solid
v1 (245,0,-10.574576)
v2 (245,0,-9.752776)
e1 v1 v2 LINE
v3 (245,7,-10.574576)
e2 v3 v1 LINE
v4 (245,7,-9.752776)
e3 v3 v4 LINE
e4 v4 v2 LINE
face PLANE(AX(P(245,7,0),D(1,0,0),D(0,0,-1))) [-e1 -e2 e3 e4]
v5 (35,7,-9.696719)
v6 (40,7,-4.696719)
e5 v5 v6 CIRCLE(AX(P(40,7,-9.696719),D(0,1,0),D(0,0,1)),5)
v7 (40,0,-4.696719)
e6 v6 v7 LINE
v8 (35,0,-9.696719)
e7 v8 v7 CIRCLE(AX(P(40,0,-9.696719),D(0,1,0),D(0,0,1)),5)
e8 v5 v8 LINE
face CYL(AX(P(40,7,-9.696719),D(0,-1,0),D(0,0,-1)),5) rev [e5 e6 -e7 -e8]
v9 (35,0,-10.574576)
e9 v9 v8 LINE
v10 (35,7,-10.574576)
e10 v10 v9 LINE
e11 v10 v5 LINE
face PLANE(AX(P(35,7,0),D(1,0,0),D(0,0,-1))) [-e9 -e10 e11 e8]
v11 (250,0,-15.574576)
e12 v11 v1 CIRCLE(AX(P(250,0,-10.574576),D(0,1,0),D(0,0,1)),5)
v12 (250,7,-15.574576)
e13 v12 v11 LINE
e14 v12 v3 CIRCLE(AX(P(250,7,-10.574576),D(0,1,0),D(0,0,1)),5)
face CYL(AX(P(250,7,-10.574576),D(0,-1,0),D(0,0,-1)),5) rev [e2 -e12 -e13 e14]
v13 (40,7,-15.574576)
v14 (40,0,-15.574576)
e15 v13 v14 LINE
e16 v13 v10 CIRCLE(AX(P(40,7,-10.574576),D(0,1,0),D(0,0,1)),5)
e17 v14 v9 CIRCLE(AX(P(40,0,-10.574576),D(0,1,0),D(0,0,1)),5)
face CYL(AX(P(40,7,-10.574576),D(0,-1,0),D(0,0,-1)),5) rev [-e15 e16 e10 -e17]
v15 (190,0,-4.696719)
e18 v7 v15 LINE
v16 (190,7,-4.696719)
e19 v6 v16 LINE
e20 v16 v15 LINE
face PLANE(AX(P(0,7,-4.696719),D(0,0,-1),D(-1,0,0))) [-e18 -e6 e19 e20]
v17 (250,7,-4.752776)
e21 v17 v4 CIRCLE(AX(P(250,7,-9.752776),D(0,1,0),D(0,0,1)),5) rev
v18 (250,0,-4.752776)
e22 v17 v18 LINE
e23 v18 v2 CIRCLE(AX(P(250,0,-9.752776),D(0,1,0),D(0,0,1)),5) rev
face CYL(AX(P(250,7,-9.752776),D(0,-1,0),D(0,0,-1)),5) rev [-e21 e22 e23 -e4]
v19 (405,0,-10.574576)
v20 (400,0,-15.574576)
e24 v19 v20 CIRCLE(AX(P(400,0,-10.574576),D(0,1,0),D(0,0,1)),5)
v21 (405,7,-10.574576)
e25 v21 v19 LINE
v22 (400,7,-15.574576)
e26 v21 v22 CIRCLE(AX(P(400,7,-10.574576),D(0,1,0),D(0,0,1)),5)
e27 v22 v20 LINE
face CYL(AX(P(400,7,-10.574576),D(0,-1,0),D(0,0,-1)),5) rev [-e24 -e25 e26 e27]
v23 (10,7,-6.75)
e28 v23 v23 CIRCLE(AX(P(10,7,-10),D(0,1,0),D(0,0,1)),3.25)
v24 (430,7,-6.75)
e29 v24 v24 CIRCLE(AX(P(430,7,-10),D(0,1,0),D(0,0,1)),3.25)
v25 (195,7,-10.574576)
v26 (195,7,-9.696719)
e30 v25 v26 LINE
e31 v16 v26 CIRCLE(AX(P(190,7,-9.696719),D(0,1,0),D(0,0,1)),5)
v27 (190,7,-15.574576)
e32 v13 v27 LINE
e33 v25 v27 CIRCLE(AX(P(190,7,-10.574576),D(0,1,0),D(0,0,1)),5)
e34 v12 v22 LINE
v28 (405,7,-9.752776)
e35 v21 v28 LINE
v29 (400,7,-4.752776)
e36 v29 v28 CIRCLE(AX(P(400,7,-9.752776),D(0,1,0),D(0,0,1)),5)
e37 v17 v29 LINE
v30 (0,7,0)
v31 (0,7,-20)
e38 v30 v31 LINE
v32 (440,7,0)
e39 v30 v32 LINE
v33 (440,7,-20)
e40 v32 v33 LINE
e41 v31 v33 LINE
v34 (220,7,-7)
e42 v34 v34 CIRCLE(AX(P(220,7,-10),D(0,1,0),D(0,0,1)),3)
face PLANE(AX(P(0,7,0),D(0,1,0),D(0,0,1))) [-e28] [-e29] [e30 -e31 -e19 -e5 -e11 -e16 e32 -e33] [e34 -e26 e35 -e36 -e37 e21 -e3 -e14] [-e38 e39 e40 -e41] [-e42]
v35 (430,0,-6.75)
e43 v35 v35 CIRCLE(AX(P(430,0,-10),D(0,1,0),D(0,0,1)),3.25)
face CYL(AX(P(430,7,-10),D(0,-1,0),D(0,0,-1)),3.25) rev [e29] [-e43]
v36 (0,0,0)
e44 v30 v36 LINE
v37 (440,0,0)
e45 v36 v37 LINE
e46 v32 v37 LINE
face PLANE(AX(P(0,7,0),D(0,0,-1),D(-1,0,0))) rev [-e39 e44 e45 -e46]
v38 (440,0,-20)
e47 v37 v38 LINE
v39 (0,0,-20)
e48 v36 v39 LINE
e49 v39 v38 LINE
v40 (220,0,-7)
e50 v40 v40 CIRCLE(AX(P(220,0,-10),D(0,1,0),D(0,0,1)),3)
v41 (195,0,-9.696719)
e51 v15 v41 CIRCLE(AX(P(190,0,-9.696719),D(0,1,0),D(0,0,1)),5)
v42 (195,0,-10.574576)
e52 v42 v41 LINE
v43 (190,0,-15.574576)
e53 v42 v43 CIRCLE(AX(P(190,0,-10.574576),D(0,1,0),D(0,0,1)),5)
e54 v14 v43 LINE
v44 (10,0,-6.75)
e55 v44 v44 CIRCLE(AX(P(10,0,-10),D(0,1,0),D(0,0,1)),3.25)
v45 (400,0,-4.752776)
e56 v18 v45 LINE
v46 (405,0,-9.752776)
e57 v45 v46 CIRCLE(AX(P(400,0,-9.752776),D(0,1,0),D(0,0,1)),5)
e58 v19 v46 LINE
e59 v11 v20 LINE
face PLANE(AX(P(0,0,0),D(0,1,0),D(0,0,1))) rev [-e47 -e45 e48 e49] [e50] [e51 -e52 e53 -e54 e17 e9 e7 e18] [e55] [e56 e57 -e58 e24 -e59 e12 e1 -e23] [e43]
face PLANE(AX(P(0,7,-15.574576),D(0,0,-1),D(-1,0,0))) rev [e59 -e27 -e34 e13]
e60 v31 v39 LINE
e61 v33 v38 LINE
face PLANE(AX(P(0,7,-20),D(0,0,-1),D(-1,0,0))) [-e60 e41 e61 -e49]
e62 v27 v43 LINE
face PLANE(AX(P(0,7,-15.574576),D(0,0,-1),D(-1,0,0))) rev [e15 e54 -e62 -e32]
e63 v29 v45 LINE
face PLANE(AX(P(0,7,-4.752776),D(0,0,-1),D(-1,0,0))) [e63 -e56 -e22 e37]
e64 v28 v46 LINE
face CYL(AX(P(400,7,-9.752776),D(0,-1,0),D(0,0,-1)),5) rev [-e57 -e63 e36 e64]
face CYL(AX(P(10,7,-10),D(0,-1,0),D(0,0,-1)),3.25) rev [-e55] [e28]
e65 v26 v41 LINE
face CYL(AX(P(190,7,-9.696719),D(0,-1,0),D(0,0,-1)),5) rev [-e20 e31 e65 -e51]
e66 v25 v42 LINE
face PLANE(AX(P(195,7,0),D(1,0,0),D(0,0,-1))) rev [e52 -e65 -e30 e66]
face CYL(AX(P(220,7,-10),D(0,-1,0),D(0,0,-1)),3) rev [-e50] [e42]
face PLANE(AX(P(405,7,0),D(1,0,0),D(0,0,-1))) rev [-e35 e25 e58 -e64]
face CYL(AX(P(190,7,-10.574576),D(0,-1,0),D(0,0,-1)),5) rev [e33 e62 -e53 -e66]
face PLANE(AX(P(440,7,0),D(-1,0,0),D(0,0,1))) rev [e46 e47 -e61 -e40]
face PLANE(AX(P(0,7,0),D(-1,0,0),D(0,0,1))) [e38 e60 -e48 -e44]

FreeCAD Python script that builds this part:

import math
import FreeCAD as App
import Part
import Sketcher

V = App.Vector
Q = App.Units.Quantity


def add_polygon(sketch, points):
    """Adds a closed chain of lines whose ends are joined by coincident constraints."""
    first, n = sketch.GeometryCount, len(points)
    for a, b in zip(points, points[1:] + points[:1]):
        sketch.addGeometry(Part.LineSegment(App.Vector(*a, 0), App.Vector(*b, 0)), False)
    for i in range(n):
        sketch.addConstraint(Sketcher.Constraint("Coincident", first + i, 2, first + (i + 1) % n, 1))

doc = App.newDocument("Part")
body = doc.addObject("PartDesign::Body", "Body")

sketch1 = body.newObject("Sketcher::SketchObject", "Sketch")
sketch1.AttachmentSupport = (doc.getObject("XZ_Plane"), [""])
sketch1.MapMode = "FlatFace"
add_polygon(sketch1, [(0, -20), (0, 0), (440, 0), (440, -20)])
sketch1.addGeometry(Part.Circle(V(10, -10, 0), V(0, 0, 1), 3.2), False)
sketch1.addGeometry(Part.ArcOfCircle(Part.Circle(V(40, -10.6, 0), V(0, 0, 1), 5), math.radians(180), math.radians(270)), False)
sketch1.addGeometry(Part.LineSegment(V(40, -15.6, 0), V(190, -15.6, 0)), False)
sketch1.addGeometry(Part.ArcOfCircle(Part.Circle(V(190, -10.6, 0), V(0, 0, 1), 5), math.radians(-90), math.radians(0)), False)
sketch1.addGeometry(Part.LineSegment(V(195, -10.6, 0), V(195, -9.7, 0)), False)
sketch1.addGeometry(Part.ArcOfCircle(Part.Circle(V(190, -9.7, 0), V(0, 0, 1), 5), math.radians(0), math.radians(90)), False)
sketch1.addGeometry(Part.LineSegment(V(190, -4.7, 0), V(40, -4.7, 0)), False)
sketch1.addGeometry(Part.ArcOfCircle(Part.Circle(V(40, -9.7, 0), V(0, 0, 1), 5), math.radians(90), math.radians(180)), False)
sketch1.addGeometry(Part.LineSegment(V(35, -9.7, 0), V(35, -10.6, 0)), False)
sketch1.addGeometry(Part.Circle(V(220, -10, 0), V(0, 0, 1), 3), False)
sketch1.addGeometry(Part.Circle(V(430, -10, 0), V(0, 0, 1), 3.2), False)
sketch1.addGeometry(Part.ArcOfCircle(Part.Circle(V(250, -10.6, 0), V(0, 0, 1), 5), math.radians(180), math.radians(270)), False)
sketch1.addGeometry(Part.LineSegment(V(250, -15.6, 0), V(400, -15.6, 0)), False)
sketch1.addGeometry(Part.ArcOfCircle(Part.Circle(V(400, -10.6, 0), V(0, 0, 1), 5), math.radians(-90), math.radians(0)), False)
sketch1.addGeometry(Part.LineSegment(V(405, -10.6, 0), V(405, -9.8, 0)), False)
sketch1.addGeometry(Part.ArcOfCircle(Part.Circle(V(400, -9.8, 0), V(0, 0, 1), 5), math.radians(0), math.radians(90)), False)
sketch1.addGeometry(Part.LineSegment(V(400, -4.8, 0), V(250, -4.8, 0)), False)
sketch1.addGeometry(Part.ArcOfCircle(Part.Circle(V(250, -9.8, 0), V(0, 0, 1), 5), math.radians(90), math.radians(180)), False)
sketch1.addGeometry(Part.LineSegment(V(245, -9.8, 0), V(245, -10.6, 0)), False)
sketch1.addConstraint(Sketcher.Constraint("Tangent", 5, 2, 6, 1))
sketch1.addConstraint(Sketcher.Constraint("Tangent", 6, 2, 7, 1))
sketch1.addConstraint(Sketcher.Constraint("Tangent", 7, 2, 8, 1))
sketch1.addConstraint(Sketcher.Constraint("Tangent", 8, 2, 9, 1))
sketch1.addConstraint(Sketcher.Constraint("Tangent", 9, 2, 10, 1))
sketch1.addConstraint(Sketcher.Constraint("Tangent", 10, 2, 11, 1))
sketch1.addConstraint(Sketcher.Constraint("Tangent", 11, 2, 12, 1))
sketch1.addConstraint(Sketcher.Constraint("Tangent", 12, 2, 5, 1))
sketch1.addConstraint(Sketcher.Constraint("Tangent", 15, 2, 16, 1))
sketch1.addConstraint(Sketcher.Constraint("Tangent", 16, 2, 17, 1))
sketch1.addConstraint(Sketcher.Constraint("Tangent", 17, 2, 18, 1))
sketch1.addConstraint(Sketcher.Constraint("Tangent", 18, 2, 19, 1))
sketch1.addConstraint(Sketcher.Constraint("Tangent", 19, 2, 20, 1))
sketch1.addConstraint(Sketcher.Constraint("Tangent", 20, 2, 21, 1))
sketch1.addConstraint(Sketcher.Constraint("Tangent", 21, 2, 22, 1))
sketch1.addConstraint(Sketcher.Constraint("Tangent", 22, 2, 15, 1))
sketch1.addConstraint(Sketcher.Constraint("Vertical", 0))
sketch1.addConstraint(Sketcher.Constraint("Horizontal", 1))
sketch1.addConstraint(Sketcher.Constraint("Vertical", 2))
sketch1.addConstraint(Sketcher.Constraint("Horizontal", 3))
sketch1.addConstraint(Sketcher.Constraint("Horizontal", 6))
sketch1.addConstraint(Sketcher.Constraint("Vertical", 8))
sketch1.addConstraint(Sketcher.Constraint("Horizontal", 10))
sketch1.addConstraint(Sketcher.Constraint("Vertical", 12))
sketch1.addConstraint(Sketcher.Constraint("Horizontal", 16))
sketch1.addConstraint(Sketcher.Constraint("Vertical", 18))
sketch1.addConstraint(Sketcher.Constraint("Horizontal", 20))
sketch1.addConstraint(Sketcher.Constraint("Vertical", 22))
sketch1.addConstraint(Sketcher.Constraint("Coincident", 0, 2, -1, 1))
sketch1.addConstraint(Sketcher.Constraint("Equal", 5, 7))
sketch1.addConstraint(Sketcher.Constraint("Equal", 7, 9))
sketch1.addConstraint(Sketcher.Constraint("Equal", 9, 11))
sketch1.addConstraint(Sketcher.Constraint("Equal", 4, 14))
sketch1.addConstraint(Sketcher.Constraint("Equal", 11, 15))
sketch1.addConstraint(Sketcher.Constraint("Equal", 15, 17))
sketch1.addConstraint(Sketcher.Constraint("Equal", 17, 19))
sketch1.addConstraint(Sketcher.Constraint("Equal", 19, 21))
sketch1.addConstraint(Sketcher.Constraint("Horizontal", 4, 3, 13, 3))
sketch1.addConstraint(Sketcher.Constraint("Horizontal", 13, 3, 14, 3))
sketch1.addConstraint(Sketcher.Constraint("Horizontal", 7, 3, 15, 3))
sketch1.addConstraint(Sketcher.Constraint("Equal", 10, 16))
sketch1.addConstraint(Sketcher.Constraint("Diameter", 13, Q("6 mm")))
sketch1.addConstraint(Sketcher.Constraint("Radius", 5, Q("5 mm")))
sketch1.addConstraint(Sketcher.Constraint("Diameter", 4, Q("6.5 mm")))
sketch1.addConstraint(Sketcher.Constraint("DistanceX", 1, 1, 1, 2, Q("440 mm")))
sketch1.addConstraint(Sketcher.Constraint("DistanceX", 6, 1, 6, 2, Q("150 mm")))
sketch1.addConstraint(Sketcher.Constraint("DistanceY", 0, 1, 0, 2, Q("20 mm")))
sketch1.addConstraint(Sketcher.Constraint("DistanceX", -1, 1, 4, 3, Q("10 mm")))
sketch1.addConstraint(Sketcher.Constraint("DistanceY", 4, 3, -1, 1, Q("10 mm")))
sketch1.addConstraint(Sketcher.Constraint("DistanceX", -1, 1, 5, 3, Q("40 mm")))
sketch1.addConstraint(Sketcher.Constraint("DistanceX", -1, 1, 13, 3, Q("220 mm")))
sketch1.addConstraint(Sketcher.Constraint("DistanceX", -1, 1, 14, 3, Q("430 mm")))
sketch1.addConstraint(Sketcher.Constraint("DistanceX", -1, 1, 15, 3, Q("250 mm")))
sketch1.addConstraint(Sketcher.Constraint("DistanceY", 18, 1, 18, 2, Q("0.8218 mm")))
sketch1.addConstraint(Sketcher.Constraint("DistanceY", 8, 1, 8, 2, Q("0.877857 mm")))
sketch1.addConstraint(Sketcher.Constraint("DistanceY", 9, 3, -1, 1, Q("9.696719 mm")))
pad1 = body.newObject("PartDesign::Pad", "Pad")
pad1.Profile = sketch1
pad1.Length = 7
pad1.Reversed = True

doc.recompute()
